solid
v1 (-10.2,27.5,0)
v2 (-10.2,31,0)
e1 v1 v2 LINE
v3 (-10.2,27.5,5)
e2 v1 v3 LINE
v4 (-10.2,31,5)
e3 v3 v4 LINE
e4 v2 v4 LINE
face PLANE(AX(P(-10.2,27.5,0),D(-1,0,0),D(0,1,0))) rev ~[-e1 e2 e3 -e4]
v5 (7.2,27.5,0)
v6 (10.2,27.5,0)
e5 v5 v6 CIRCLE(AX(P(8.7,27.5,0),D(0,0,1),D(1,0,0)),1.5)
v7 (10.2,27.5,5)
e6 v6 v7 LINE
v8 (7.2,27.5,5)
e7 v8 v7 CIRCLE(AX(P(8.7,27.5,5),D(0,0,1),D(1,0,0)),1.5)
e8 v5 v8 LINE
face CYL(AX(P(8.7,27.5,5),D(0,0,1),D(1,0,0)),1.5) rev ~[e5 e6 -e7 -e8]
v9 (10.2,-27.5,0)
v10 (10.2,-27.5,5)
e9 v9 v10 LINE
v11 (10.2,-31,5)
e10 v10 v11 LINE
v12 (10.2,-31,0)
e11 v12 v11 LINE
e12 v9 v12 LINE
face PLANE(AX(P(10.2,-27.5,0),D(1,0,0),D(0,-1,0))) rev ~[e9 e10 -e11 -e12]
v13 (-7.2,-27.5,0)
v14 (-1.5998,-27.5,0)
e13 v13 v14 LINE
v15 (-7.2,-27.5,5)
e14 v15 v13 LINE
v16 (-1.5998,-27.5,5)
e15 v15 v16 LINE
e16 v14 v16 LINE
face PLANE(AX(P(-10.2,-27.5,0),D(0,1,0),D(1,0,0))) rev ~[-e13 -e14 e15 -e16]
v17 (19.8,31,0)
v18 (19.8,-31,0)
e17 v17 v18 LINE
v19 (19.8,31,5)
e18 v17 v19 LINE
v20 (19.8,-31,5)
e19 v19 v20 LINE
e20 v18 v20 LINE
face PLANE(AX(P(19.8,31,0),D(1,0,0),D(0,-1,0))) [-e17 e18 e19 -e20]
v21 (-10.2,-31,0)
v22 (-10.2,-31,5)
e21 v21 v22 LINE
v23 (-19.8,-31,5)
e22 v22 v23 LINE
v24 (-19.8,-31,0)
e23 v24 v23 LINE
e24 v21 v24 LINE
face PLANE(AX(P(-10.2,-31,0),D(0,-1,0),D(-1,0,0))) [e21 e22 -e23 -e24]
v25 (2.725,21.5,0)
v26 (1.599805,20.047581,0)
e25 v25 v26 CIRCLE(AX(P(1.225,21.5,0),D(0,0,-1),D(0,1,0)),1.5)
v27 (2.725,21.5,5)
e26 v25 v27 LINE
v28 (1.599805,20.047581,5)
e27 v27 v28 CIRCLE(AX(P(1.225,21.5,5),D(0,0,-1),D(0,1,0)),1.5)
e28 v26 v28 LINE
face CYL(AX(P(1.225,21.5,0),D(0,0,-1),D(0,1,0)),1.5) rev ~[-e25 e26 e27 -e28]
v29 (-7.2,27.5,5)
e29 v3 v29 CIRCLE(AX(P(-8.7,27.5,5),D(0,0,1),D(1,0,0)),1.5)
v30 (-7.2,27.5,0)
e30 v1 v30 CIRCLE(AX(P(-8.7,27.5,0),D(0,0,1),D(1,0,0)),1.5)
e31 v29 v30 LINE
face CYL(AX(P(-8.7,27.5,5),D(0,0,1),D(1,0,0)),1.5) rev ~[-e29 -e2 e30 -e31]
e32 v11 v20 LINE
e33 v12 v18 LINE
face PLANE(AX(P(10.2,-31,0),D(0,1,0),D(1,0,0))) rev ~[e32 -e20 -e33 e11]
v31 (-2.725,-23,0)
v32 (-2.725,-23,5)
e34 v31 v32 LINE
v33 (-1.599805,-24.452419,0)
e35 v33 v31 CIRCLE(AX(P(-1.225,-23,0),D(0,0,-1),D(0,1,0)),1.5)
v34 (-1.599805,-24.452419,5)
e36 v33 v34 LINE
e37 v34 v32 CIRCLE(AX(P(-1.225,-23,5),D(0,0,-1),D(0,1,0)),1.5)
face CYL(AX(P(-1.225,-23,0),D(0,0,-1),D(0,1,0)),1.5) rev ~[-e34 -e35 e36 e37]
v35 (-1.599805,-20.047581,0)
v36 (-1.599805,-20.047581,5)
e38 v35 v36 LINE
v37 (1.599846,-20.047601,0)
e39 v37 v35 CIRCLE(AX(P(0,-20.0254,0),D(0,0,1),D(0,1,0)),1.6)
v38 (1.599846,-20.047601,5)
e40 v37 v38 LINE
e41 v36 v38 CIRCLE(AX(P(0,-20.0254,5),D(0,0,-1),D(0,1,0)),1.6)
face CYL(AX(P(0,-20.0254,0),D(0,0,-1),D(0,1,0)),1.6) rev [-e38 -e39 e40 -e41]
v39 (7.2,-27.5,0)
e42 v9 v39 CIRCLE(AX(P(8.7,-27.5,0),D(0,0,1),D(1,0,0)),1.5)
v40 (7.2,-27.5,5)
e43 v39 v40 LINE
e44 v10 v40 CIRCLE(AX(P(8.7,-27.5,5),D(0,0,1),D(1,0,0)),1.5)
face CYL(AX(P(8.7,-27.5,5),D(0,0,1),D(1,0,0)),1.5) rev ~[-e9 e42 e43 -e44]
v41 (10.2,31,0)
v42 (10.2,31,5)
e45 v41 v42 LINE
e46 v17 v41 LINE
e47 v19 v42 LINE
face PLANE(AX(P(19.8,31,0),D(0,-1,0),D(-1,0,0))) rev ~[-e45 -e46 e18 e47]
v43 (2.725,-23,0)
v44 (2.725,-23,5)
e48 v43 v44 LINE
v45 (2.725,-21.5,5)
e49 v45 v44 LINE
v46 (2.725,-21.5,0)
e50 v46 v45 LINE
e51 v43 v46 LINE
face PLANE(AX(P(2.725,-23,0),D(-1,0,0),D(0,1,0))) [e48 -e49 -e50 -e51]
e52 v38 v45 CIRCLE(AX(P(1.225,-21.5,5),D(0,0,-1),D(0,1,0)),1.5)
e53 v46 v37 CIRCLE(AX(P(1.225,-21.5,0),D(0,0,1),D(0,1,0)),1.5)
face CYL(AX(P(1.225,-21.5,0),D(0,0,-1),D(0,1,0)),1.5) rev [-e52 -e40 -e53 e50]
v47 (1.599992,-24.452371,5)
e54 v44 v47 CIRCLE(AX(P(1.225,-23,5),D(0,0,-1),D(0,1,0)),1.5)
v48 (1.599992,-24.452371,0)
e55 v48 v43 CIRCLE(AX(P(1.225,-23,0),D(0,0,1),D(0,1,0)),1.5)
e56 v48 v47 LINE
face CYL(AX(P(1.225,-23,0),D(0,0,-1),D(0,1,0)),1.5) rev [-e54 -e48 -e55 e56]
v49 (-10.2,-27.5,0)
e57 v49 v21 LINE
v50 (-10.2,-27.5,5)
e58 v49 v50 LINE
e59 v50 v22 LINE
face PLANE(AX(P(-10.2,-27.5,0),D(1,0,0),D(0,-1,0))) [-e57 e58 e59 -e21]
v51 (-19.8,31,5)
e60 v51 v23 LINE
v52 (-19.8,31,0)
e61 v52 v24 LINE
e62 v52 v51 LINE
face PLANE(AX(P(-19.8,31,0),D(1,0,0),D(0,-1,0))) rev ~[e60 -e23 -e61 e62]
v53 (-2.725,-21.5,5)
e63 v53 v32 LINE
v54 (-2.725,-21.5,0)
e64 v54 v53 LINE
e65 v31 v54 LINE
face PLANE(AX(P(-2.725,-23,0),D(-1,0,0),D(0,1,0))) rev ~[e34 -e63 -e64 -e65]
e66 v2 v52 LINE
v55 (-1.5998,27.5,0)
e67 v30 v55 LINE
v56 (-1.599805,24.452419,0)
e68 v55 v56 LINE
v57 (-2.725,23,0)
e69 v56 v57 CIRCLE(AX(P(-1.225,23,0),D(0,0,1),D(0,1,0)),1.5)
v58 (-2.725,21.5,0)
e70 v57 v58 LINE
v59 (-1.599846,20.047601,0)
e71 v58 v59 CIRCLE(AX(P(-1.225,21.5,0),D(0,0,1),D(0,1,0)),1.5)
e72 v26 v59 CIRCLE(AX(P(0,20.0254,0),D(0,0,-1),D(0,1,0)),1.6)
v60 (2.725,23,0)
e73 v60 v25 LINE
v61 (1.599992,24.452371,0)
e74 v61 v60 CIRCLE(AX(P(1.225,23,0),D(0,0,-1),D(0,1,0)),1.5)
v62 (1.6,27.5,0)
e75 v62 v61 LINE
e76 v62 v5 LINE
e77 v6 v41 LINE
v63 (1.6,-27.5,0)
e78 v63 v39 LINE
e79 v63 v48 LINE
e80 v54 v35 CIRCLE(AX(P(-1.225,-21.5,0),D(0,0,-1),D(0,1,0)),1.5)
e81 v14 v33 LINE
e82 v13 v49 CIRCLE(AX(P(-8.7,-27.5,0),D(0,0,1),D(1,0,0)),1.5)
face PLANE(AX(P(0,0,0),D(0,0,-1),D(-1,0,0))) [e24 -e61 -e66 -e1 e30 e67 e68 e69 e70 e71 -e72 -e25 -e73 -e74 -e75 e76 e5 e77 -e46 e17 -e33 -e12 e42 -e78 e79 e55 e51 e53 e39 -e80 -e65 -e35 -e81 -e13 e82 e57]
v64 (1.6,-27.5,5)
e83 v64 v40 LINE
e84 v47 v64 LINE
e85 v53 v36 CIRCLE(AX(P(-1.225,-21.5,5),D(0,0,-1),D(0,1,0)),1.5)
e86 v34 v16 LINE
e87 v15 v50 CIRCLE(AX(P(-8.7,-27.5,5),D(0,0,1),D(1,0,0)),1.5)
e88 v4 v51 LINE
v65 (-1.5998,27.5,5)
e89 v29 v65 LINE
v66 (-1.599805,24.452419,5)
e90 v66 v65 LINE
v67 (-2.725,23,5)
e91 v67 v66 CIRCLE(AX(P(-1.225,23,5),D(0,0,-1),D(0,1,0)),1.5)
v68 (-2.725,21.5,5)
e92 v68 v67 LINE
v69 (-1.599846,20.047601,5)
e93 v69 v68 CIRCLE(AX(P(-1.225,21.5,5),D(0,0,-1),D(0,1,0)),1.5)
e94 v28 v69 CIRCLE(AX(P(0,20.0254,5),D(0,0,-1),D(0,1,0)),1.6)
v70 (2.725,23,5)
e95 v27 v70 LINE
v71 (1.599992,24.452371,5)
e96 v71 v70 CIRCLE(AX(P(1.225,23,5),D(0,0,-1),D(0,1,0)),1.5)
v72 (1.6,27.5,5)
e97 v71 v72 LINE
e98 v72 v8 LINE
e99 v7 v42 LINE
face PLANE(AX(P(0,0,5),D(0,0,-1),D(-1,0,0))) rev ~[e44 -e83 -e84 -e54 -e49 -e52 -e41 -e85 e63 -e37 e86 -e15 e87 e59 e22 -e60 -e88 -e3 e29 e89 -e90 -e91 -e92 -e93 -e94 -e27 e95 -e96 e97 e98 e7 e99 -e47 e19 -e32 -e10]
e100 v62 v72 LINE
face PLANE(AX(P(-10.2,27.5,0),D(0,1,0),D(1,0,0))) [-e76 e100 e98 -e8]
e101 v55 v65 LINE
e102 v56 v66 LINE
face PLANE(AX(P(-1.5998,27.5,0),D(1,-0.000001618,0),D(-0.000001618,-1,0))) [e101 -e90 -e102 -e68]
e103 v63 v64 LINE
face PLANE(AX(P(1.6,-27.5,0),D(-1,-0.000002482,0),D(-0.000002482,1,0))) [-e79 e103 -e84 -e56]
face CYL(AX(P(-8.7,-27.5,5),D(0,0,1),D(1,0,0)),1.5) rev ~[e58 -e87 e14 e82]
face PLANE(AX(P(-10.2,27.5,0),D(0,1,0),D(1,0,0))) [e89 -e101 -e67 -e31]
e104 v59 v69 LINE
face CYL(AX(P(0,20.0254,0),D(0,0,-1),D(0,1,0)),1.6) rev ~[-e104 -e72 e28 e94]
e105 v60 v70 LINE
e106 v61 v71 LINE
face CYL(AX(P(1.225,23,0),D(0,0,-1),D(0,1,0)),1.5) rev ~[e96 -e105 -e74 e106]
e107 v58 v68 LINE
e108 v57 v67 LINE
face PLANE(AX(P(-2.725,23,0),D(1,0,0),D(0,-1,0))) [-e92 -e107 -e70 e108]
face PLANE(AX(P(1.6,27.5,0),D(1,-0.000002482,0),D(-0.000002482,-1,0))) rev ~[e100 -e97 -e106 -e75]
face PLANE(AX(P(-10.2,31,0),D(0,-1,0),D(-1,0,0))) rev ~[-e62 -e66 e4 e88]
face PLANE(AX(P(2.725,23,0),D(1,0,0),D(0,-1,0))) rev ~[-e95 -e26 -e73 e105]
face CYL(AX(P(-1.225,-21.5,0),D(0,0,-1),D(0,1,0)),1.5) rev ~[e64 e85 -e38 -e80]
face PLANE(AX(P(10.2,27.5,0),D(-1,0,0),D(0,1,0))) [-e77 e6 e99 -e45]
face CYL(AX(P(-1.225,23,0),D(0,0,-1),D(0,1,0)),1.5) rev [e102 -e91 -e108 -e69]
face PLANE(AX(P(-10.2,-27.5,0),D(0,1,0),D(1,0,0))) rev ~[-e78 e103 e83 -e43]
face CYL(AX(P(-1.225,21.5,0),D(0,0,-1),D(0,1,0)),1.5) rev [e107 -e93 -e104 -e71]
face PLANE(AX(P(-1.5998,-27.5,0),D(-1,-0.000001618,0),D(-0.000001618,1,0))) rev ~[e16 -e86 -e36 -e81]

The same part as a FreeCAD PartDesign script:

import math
import FreeCAD as App
import Part
import Sketcher

V = App.Vector


def add_polygon(sketch, points):
    """Adds a closed chain of lines whose ends are joined by coincident constraints."""
    first, n = sketch.GeometryCount, len(points)
    for a, b in zip(points, points[1:] + points[:1]):
        sketch.addGeometry(Part.LineSegment(App.Vector(*a, 0), App.Vector(*b, 0)), False)
    for i in range(n):
        sketch.addConstraint(Sketcher.Constraint("Coincident", first + i, 2, first + (i + 1) % n, 1))

doc = App.newDocument("Part")
params = doc.addObject("Spreadsheet::Sheet", "Params")
for row, (alias, value) in enumerate([
    ("sketch1_height", "62 mm"),
    ("sketch1_width", "20.4 mm"),
    ("sketch1_width2", "9.6 mm"),
    ("sketch1_height2", "3.5 mm"),
    ("pad1_length", "5 mm"),
    ("sketch2_diameter", "3 mm"),
    ("pocket1_length", "5 mm"),
    ("sketch3_radius", "1.5 mm"),
    ("sketch3_radius2", "1.5 mm"),
    ("sketch3_radius3", "1.6 mm"),
    ("sketch3_radius4", "1.5 mm"),
    ("sketch3_radius5", "1.5 mm"),
], start=1):
    params.set(f"A{row}", alias)
    params.set(f"B{row}", "=" + value)
    params.setAlias(f"B{row}", alias)

body = doc.addObject("PartDesign::Body", "Body")

# Sketch on XY plane
sketch1 = doc.addObject("Sketcher::SketchObject", "Sketch")
body.addObject(sketch1)
sketch1.AttachmentSupport = (doc.XY_Plane, [""])
sketch1.MapMode = "FlatFace"
add_polygon(sketch1, [(10.2, 27.5), (-10.2, 27.5), (-10.2, 31), (-19.8, 31), (-19.8, -31), (-10.2, -31), (-10.2, -27.5), (10.2, -27.5), (10.2, -31), (19.8, -31), (19.8, 31), (10.2, 31)])  # lines 0-11
sketch1.addConstraint(Sketcher.Constraint("Horizontal", 0))
sketch1.addConstraint(Sketcher.Constraint("Vertical", 1))
sketch1.addConstraint(Sketcher.Constraint("Horizontal", 2))
sketch1.addConstraint(Sketcher.Constraint("Vertical", 3))
sketch1.addConstraint(Sketcher.Constraint("Horizontal", 4))
sketch1.addConstraint(Sketcher.Constraint("Vertical", 5))
sketch1.addConstraint(Sketcher.Constraint("Horizontal", 6))
sketch1.addConstraint(Sketcher.Constraint("Vertical", 7))
sketch1.addConstraint(Sketcher.Constraint("Horizontal", 8))
sketch1.addConstraint(Sketcher.Constraint("Vertical", 9))
sketch1.addConstraint(Sketcher.Constraint("Horizontal", 10))
sketch1.addConstraint(Sketcher.Constraint("Vertical", 11))
sketch1.addConstraint(Sketcher.Constraint("Symmetric", 0, 2, 6, 2, -1, 1))
sketch1.addConstraint(Sketcher.Constraint("Symmetric", 2, 2, 8, 2, -1, 1))
sketch1.addConstraint(Sketcher.Constraint("Symmetric", 4, 2, 10, 2, -1, 1))
sketch1.addConstraint(Sketcher.Constraint("Symmetric", 4, 2, 7, 2, -2))
sketch1.addConstraint(Sketcher.Constraint("DistanceY", 3, 2, 3, 1, 62.0))
sketch1.addConstraint(Sketcher.Constraint("DistanceX", 0, 2, 0, 1, 20.4))
sketch1.addConstraint(Sketcher.Constraint("DistanceX", 2, 2, 2, 1, 9.6))
sketch1.addConstraint(Sketcher.Constraint("DistanceY", 1, 1, 1, 2, 3.5))
sketch1.setExpression("Constraints[28]", "Params.sketch1_height")
sketch1.setExpression("Constraints[29]", "Params.sketch1_width")
sketch1.setExpression("Constraints[30]", "Params.sketch1_width2")
sketch1.setExpression("Constraints[31]", "Params.sketch1_height2")
pad1 = doc.addObject("PartDesign::Pad", "Pad")
body.addObject(pad1)
pad1.Profile = sketch1
pad1.setExpression("Length", "Params.pad1_length")

# Sketch on XY plane
sketch2 = doc.addObject("Sketcher::SketchObject", "Sketch001")
body.addObject(sketch2)
sketch2.AttachmentSupport = (doc.XY_Plane, [""])
sketch2.MapMode = "FlatFace"
sketch2.AttachmentOffset = App.Placement(V(0, 0, 5), App.Rotation())
sketch2.addGeometry(Part.Circle(V(8.7, 27.5, 0), V(0, 0, 1), 1.5), False)
sketch2.addGeometry(Part.Circle(V(-8.7, 27.5, 0), V(0, 0, 1), 1.5), False)
sketch2.addGeometry(Part.Circle(V(8.7, -27.5, 0), V(0, 0, 1), 1.5), False)
sketch2.addGeometry(Part.Circle(V(-8.7, -27.5, 0), V(0, 0, 1), 1.5), False)
sketch2.addConstraint(Sketcher.Constraint("Equal", 0, 1))
sketch2.addConstraint(Sketcher.Constraint("Equal", 1, 2))
sketch2.addConstraint(Sketcher.Constraint("Equal", 2, 3))
sketch2.addConstraint(Sketcher.Constraint("Symmetric", 1, 3, 2, 3, -1, 1))
sketch2.addConstraint(Sketcher.Constraint("Symmetric", 0, 3, 3, 3, -1, 1))
sketch2.addConstraint(Sketcher.Constraint("Symmetric", 0, 3, 1, 3, -2))
sketch2.addConstraint(Sketcher.Constraint("Diameter", 0, 3.0))
sketch2.addConstraint(Sketcher.Constraint("DistanceY", 2, 3, 0, 3, 55.0))
sketch2.addConstraint(Sketcher.Constraint("DistanceX", -1, 1, 0, 3, 8.7))
sketch2.setExpression("Constraints[6]", "Params.sketch2_diameter")
pocket1 = doc.addObject("PartDesign::Pocket", "Pocket")
body.addObject(pocket1)
pocket1.Profile = sketch2
pocket1.setExpression("Length", "Params.pocket1_length")

# Sketch on XY plane
sketch3 = doc.addObject("Sketcher::SketchObject", "Sketch002")
body.addObject(sketch3)
sketch3.AttachmentSupport = (doc.XY_Plane, [""])
sketch3.MapMode = "FlatFace"
sketch3.addGeometry(Part.LineSegment(V(1.6, -27.5, 0), V(-1.5998, -27.5, 0)), False)
sketch3.addGeometry(Part.LineSegment(V(-1.5998, -27.5, 0), V(-1.5998, -24.4524, 0)), False)
sketch3.addGeometry(Part.ArcOfCircle(Part.Circle(V(-1.225, -23, 0), V(0, 0, 1), 1.49998), math.radians(180), math.radians(255.530183)), False)
sketch3.addGeometry(Part.LineSegment(V(-2.725, -23, 0), V(-2.725, -21.5, 0)), False)
sketch3.addGeometry(Part.ArcOfCircle(Part.Circle(V(-1.225, -21.5, 0), V(0, 0, 1), 1.5), math.radians(104.469817), math.radians(180)), False)
sketch3.addGeometry(Part.ArcOfCircle(Part.Circle(V(0, -20.0254, 0), V(0, 0, 1), 1.599954), math.radians(-0.795027), math.radians(180.795027)), False)
sketch3.addGeometry(Part.ArcOfCircle(Part.Circle(V(1.225, -21.5, 0), V(0, 0, 1), 1.5), math.radians(0), math.radians(75.530183)), False)
sketch3.addGeometry(Part.LineSegment(V(2.725, -21.5, 0), V(2.725, -23, 0)), False)
sketch3.addGeometry(Part.ArcOfCircle(Part.Circle(V(1.225, -23, 0), V(0, 0, 1), 1.50003), math.radians(-75.522786), math.radians(0)), False)
sketch3.addGeometry(Part.LineSegment(V(1.6, -24.4524, 0), V(1.6, -27.5, 0)), False)
sketch3.addGeometry(Part.LineSegment(V(2.725, 23, 0), V(2.725, 21.5, 0)), False)
sketch3.addGeometry(Part.ArcOfCircle(Part.Circle(V(1.225, 21.5, 0), V(0, 0, 1), 1.5), math.radians(-75.530183), math.radians(0)), False)
sketch3.addGeometry(Part.ArcOfCircle(Part.Circle(V(0, 20.0254, 0), V(0, 0, 1), 1.599954), math.radians(179.204973), math.radians(360.795027)), False)
sketch3.addGeometry(Part.ArcOfCircle(Part.Circle(V(-1.225, 21.5, 0), V(0, 0, 1), 1.5), math.radians(180), math.radians(255.530183)), False)
sketch3.addGeometry(Part.LineSegment(V(-2.725, 21.5, 0), V(-2.725, 23, 0)), False)
sketch3.addGeometry(Part.ArcOfCircle(Part.Circle(V(-1.225, 23, 0), V(0, 0, 1), 1.49998), math.radians(104.469817), math.radians(180)), False)
sketch3.addGeometry(Part.LineSegment(V(-1.5998, 24.4524, 0), V(-1.5998, 27.5, 0)), False)
sketch3.addGeometry(Part.LineSegment(V(-1.5998, 27.5, 0), V(1.6, 27.5, 0)), False)
sketch3.addGeometry(Part.LineSegment(V(1.6, 27.5, 0), V(1.6, 24.4524, 0)), False)
sketch3.addGeometry(Part.ArcOfCircle(Part.Circle(V(1.225, 23, 0), V(0, 0, 1), 1.50003), math.radians(0), math.radians(75.522786)), False)
sketch3.addConstraint(Sketcher.Constraint("Coincident", 0, 2, 1, 1))
sketch3.addConstraint(Sketcher.Constraint("Coincident", 1, 2, 2, 2))
sketch3.addConstraint(Sketcher.Constraint("Coincident", 2, 1, 3, 1))
sketch3.addConstraint(Sketcher.Constraint("Coincident", 3, 2, 4, 2))
sketch3.addConstraint(Sketcher.Constraint("Coincident", 4, 1, 5, 2))
sketch3.addConstraint(Sketcher.Constraint("Coincident", 5, 1, 6, 2))
sketch3.addConstraint(Sketcher.Constraint("Coincident", 6, 1, 7, 1))
sketch3.addConstraint(Sketcher.Constraint("Coincident", 7, 2, 8, 2))
sketch3.addConstraint(Sketcher.Constraint("Coincident", 8, 1, 9, 1))
sketch3.addConstraint(Sketcher.Constraint("Coincident", 9, 2, 0, 1))
sketch3.addConstraint(Sketcher.Constraint("Coincident", 10, 2, 11, 2))
sketch3.addConstraint(Sketcher.Constraint("Coincident", 11, 1, 12, 2))
sketch3.addConstraint(Sketcher.Constraint("Coincident", 12, 1, 13, 2))
sketch3.addConstraint(Sketcher.Constraint("Coincident", 13, 1, 14, 1))
sketch3.addConstraint(Sketcher.Constraint("Coincident", 14, 2, 15, 2))
sketch3.addConstraint(Sketcher.Constraint("Coincident", 15, 1, 16, 1))
sketch3.addConstraint(Sketcher.Constraint("Coincident", 16, 2, 17, 1))
sketch3.addConstraint(Sketcher.Constraint("Coincident", 17, 2, 18, 1))
sketch3.addConstraint(Sketcher.Constraint("Coincident", 18, 2, 19, 2))
sketch3.addConstraint(Sketcher.Constraint("Coincident", 19, 1, 10, 1))
sketch3.addConstraint(Sketcher.Constraint("Horizontal", 0))
sketch3.addConstraint(Sketcher.Constraint("Vertical", 1))
sketch3.addConstraint(Sketcher.Constraint("Vertical", 3))
sketch3.addConstraint(Sketcher.Constraint("Vertical", 7))
sketch3.addConstraint(Sketcher.Constraint("Vertical", 9))
sketch3.addConstraint(Sketcher.Constraint("Vertical", 10))
sketch3.addConstraint(Sketcher.Constraint("Vertical", 14))
sketch3.addConstraint(Sketcher.Constraint("Vertical", 16))
sketch3.addConstraint(Sketcher.Constraint("Horizontal", 17))
sketch3.addConstraint(Sketcher.Constraint("Vertical", 18))
sketch3.addConstraint(Sketcher.Constraint("PointOnObject", 5, 3, -2))
sketch3.addConstraint(Sketcher.Constraint("PointOnObject", 12, 3, -2))
sketch3.addConstraint(Sketcher.Constraint("Radius", 2, 1.5))
sketch3.addConstraint(Sketcher.Constraint("Radius", 4, 1.5))
sketch3.addConstraint(Sketcher.Constraint("Radius", 5, 1.6))
sketch3.addConstraint(Sketcher.Constraint("Radius", 6, 1.5))
sketch3.addConstraint(Sketcher.Constraint("Radius", 8, 1.5))
sketch3.addConstraint(Sketcher.Constraint("Radius", 11, 1.5))
sketch3.addConstraint(Sketcher.Constraint("Radius", 12, 1.6))
sketch3.addConstraint(Sketcher.Constraint("Radius", 13, 1.5))
sketch3.addConstraint(Sketcher.Constraint("Radius", 15, 1.5))
sketch3.addConstraint(Sketcher.Constraint("Radius", 19, 1.5))
sketch3.addConstraint(Sketcher.Constraint("DistanceY", 3, 1, 3, 2, 1.5))
sketch3.addConstraint(Sketcher.Constraint("DistanceY", 7, 2, 7, 1, 1.5))
sketch3.addConstraint(Sketcher.Constraint("DistanceY", 10, 2, 10, 1, 1.5))
sketch3.addConstraint(Sketcher.Constraint("DistanceY", 14, 1, 14, 2, 1.5))
sketch3.addConstraint(Sketcher.Constraint("DistanceY", 2, 3, -1, 1, 23.0))
sketch3.addConstraint(Sketcher.Constraint("DistanceY", 8, 3, -1, 1, 23.0))
sketch3.addConstraint(Sketcher.Constraint("DistanceY", -1, 1, 15, 3, 23.0))
sketch3.addConstraint(Sketcher.Constraint("DistanceY", -1, 1, 19, 3, 23.0))
sketch3.addConstraint(Sketcher.Constraint("DistanceY", 2, 1, -1, 1, 23.0))
sketch3.addConstraint(Sketcher.Constraint("DistanceY", 7, 2, -1, 1, 23.0))
sketch3.addConstraint(Sketcher.Constraint("DistanceY", -1, 1, 14, 2, 23.0))
sketch3.addConstraint(Sketcher.Constraint("DistanceY", -1, 1, 19, 1, 23.0))
sketch3.addConstraint(Sketcher.Constraint("DistanceY", 6, 3, 11, 3, 43.0))
sketch3.addConstraint(Sketcher.Constraint("DistanceY", 4, 3, 11, 3, 43.0))
sketch3.addConstraint(Sketcher.Constraint("DistanceY", 4, 3, 13, 3, 43.0))
sketch3.addConstraint(Sketcher.Constraint("DistanceY", 0, 2, 4, 3, 6.0))
sketch3.addConstraint(Sketcher.Constraint("DistanceY", 13, 3, 16, 2, 6.0))
sketch3.addConstraint(Sketcher.Constraint("DistanceY", 4, 3, -1, 1, 21.5))
sketch3.addConstraint(Sketcher.Constraint("DistanceX", -1, 1, 8, 1, 1.6))
sketch3.addConstraint(Sketcher.Constraint("DistanceX", -1, 1, 17, 2, 1.6))
sketch3.addConstraint(Sketcher.Constraint("DistanceX", 4, 3, 6, 3, 2.45))
sketch3.addConstraint(Sketcher.Constraint("DistanceX", 4, 3, 11, 3, 2.45))
sketch3.addConstraint(Sketcher.Constraint("DistanceX", 13, 3, 11, 3, 2.45))
sketch3.addConstraint(Sketcher.Constraint("DistanceX", 0, 2, 0, 1, 3.1998))
sketch3.addConstraint(Sketcher.Constraint("DistanceX", 17, 1, 17, 2, 3.1998))
sketch3.addConstraint(Sketcher.Constraint("DistanceY", 1, 1, 1, 2, 3.0476))
sketch3.addConstraint(Sketcher.Constraint("DistanceY", 5, 3, -1, 1, 20.0254))
sketch3.addConstraint(Sketcher.Constraint("DistanceY", -1, 1, 12, 3, 20.0254))
sketch3.setExpression("Constraints[32]", "Params.sketch3_radius")
sketch3.setExpression("Constraints[33]", "Params.sketch3_radius2")
sketch3.setExpression("Constraints[34]", "Params.sketch3_radius3")
sketch3.setExpression("Constraints[35]", "Params.sketch3_radius4")
sketch3.setExpression("Constraints[36]", "Params.sketch3_radius5")
pocket2 = doc.addObject("PartDesign::Pocket", "Pocket001")
body.addObject(pocket2)
pocket2.Profile = sketch3
pocket2.Type = "UpToFirst"
pocket2.Reversed = True

doc.recompute()
